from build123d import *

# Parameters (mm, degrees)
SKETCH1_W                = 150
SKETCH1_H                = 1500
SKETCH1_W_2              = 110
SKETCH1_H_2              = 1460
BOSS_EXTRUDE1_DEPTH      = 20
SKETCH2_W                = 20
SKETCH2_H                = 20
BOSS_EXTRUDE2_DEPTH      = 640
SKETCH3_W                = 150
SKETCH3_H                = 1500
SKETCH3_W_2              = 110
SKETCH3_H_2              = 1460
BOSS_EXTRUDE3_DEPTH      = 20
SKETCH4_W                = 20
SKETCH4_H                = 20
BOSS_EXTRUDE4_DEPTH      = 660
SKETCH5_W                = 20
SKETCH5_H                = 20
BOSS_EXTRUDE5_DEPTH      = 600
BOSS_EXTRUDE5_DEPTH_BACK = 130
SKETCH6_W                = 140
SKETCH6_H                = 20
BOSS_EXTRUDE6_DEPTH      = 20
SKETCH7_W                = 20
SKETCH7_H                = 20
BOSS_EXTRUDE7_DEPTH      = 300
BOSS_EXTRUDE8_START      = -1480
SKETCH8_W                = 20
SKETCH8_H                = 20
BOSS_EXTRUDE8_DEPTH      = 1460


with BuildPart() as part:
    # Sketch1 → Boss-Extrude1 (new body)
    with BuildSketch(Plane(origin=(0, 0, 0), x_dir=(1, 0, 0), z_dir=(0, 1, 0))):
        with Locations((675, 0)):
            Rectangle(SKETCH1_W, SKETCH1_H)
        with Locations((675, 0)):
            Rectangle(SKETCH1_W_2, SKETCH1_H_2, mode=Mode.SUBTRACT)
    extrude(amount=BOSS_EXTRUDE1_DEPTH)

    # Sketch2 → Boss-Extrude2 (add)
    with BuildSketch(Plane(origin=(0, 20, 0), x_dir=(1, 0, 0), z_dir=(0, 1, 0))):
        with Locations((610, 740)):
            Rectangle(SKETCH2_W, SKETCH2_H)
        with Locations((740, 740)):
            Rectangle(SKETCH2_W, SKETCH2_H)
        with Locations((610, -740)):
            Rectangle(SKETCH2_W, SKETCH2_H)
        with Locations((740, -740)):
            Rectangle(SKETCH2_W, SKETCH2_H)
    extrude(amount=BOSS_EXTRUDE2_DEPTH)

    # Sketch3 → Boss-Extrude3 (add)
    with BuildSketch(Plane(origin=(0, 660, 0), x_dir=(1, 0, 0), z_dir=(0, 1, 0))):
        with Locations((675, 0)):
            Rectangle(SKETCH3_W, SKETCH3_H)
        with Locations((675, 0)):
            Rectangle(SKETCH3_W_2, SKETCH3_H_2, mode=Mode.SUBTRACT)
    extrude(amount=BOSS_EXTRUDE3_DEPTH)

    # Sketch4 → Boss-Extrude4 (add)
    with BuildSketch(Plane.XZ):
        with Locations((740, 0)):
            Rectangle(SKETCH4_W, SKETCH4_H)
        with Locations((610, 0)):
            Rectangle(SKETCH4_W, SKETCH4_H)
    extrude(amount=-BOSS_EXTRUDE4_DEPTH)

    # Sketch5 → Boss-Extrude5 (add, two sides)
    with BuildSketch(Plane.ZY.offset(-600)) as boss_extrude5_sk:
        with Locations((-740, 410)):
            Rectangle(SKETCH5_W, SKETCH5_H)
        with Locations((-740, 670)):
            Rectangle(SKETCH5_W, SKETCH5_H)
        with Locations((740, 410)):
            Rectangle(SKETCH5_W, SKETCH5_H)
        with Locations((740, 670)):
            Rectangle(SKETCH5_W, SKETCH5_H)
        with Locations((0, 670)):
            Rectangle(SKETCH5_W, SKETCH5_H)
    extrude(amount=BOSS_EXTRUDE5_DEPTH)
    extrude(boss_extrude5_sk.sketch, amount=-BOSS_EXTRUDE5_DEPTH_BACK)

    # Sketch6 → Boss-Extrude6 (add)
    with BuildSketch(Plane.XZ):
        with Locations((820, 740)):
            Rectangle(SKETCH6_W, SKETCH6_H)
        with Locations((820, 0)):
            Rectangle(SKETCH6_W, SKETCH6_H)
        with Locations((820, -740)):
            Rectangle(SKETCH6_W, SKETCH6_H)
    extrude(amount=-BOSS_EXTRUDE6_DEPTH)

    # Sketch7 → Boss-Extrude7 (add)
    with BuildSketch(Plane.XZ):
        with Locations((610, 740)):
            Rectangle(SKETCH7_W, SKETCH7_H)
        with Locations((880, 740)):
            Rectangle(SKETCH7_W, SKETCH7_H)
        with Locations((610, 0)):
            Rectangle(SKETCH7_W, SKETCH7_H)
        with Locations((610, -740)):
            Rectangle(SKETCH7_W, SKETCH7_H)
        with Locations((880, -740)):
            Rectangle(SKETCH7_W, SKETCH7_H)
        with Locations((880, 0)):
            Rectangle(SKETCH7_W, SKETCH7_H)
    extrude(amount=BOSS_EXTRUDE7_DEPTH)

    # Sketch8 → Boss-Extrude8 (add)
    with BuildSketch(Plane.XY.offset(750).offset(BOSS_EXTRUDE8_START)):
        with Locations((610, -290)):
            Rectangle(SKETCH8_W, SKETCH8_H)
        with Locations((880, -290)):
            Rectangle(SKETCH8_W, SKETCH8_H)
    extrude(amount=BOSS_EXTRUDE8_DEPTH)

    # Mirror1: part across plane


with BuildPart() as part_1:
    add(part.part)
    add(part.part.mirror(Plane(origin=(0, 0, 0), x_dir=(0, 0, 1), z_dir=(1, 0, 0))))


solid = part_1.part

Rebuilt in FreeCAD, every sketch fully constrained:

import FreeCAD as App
import Part
import Sketcher
from FreeCAD import Vector
Q = App.Units.Quantity


def add_polygon(sketch, points):
    """Adds a closed chain of lines whose ends are joined by coincident constraints."""
    first, n = sketch.GeometryCount, len(points)
    for a, b in zip(points, points[1:] + points[:1]):
        sketch.addGeometry(Part.LineSegment(App.Vector(*a, 0), App.Vector(*b, 0)), False)
    for i in range(n):
        sketch.addConstraint(Sketcher.Constraint("Coincident", first + i, 2, first + (i + 1) % n, 1))

doc = App.newDocument("Part")
body = doc.addObject("PartDesign::Body", "Body")

# Sketch on XZ plane
sketch1 = doc.addObject("Sketcher::SketchObject", "Sketch")
body.addObject(sketch1)
sketch1.AttachmentSupport = (doc.XZ_Plane, [""])
sketch1.MapMode = "FlatFace"
add_polygon(sketch1, [(600, -750), (600, 750), (750, 750), (750, -750)])  # lines 0-3
add_polygon(sketch1, [(730, 730), (620, 730), (620, -730), (730, -730)])  # lines 4-7
sketch1.addConstraint([
    Sketcher.Constraint("Vertical", 0),
    Sketcher.Constraint("Horizontal", 1),
    Sketcher.Constraint("Vertical", 2),
    Sketcher.Constraint("Horizontal", 3),
    Sketcher.Constraint("Horizontal", 4),
    Sketcher.Constraint("Vertical", 5),
    Sketcher.Constraint("Horizontal", 6),
    Sketcher.Constraint("Vertical", 7),
    Sketcher.Constraint("DistanceX", 1, 1, 1, 2, Q("150 mm")),
    Sketcher.Constraint("DistanceX", 4, 2, 4, 1, Q("110 mm")),
    Sketcher.Constraint("DistanceY", 0, 1, 0, 2, Q("1500 mm")),
    Sketcher.Constraint("DistanceY", 5, 2, 5, 1, Q("1460 mm")),
    Sketcher.Constraint("DistanceX", -1, 1, 0, 2, Q("600 mm")),
    Sketcher.Constraint("DistanceY", -1, 1, 0, 2, Q("750 mm")),
    Sketcher.Constraint("DistanceX", -1, 1, 4, 2, Q("620 mm")),
    Sketcher.Constraint("DistanceY", -1, 1, 4, 2, Q("730 mm")),
])
pad1 = doc.addObject("PartDesign::Pad", "Pad")
body.addObject(pad1)
pad1.Profile = sketch1
pad1.Length = 20
pad1.Reversed = True

# Sketch on XZ plane
sketch2 = doc.addObject("Sketcher::SketchObject", "Sketch001")
body.addObject(sketch2)
sketch2.AttachmentSupport = (doc.XZ_Plane, [""])
sketch2.MapMode = "FlatFace"
sketch2.AttachmentOffset = App.Placement(Vector(0, 0, -20), App.Rotation())
add_polygon(sketch2, [(600, -750), (600, -730), (620, -730), (620, -750)])  # lines 0-3
add_polygon(sketch2, [(730, -750), (730, -730), (750, -730), (750, -750)])  # lines 4-7
add_polygon(sketch2, [(600, 730), (600, 750), (620, 750), (620, 730)])  # lines 8-11
add_polygon(sketch2, [(730, 730), (730, 750), (750, 750), (750, 730)])  # lines 12-15
sketch2.addConstraint([
    Sketcher.Constraint("Vertical", 0),
    Sketcher.Constraint("Horizontal", 1),
    Sketcher.Constraint("Vertical", 2),
    Sketcher.Constraint("Horizontal", 3),
    Sketcher.Constraint("Vertical", 4),
    Sketcher.Constraint("Horizontal", 5),
    Sketcher.Constraint("Vertical", 6),
    Sketcher.Constraint("Horizontal", 7),
    Sketcher.Constraint("Vertical", 8),
    Sketcher.Constraint("Horizontal", 9),
    Sketcher.Constraint("Vertical", 10),
    Sketcher.Constraint("Horizontal", 11),
    Sketcher.Constraint("Vertical", 12),
    Sketcher.Constraint("Horizontal", 13),
    Sketcher.Constraint("Vertical", 14),
    Sketcher.Constraint("Horizontal", 15),
    Sketcher.Constraint("Symmetric", 3, 2, 8, 2, -1),
    Sketcher.Constraint("Symmetric", 1, 2, 10, 2, -1),
    Sketcher.Constraint("Symmetric", 7, 2, 12, 2, -1),
    Sketcher.Constraint("Symmetric", 5, 2, 14, 2, -1),
    Sketcher.Constraint("Horizontal", 1, 2, 4, 2),
    Sketcher.Constraint("Horizontal", 3, 2, 6, 2),
    Sketcher.Constraint("Equal", 3, 5),
    Sketcher.Constraint("Equal", 15, 0),
    Sketcher.Constraint("DistanceX", 1, 1, 1, 2, Q("20 mm")),
    Sketcher.Constraint("DistanceX", -1, 1, 0, 2, Q("600 mm")),
    Sketcher.Constraint("DistanceY", 0, 2, -1, 1, Q("730 mm")),
    Sketcher.Constraint("DistanceX", -1, 1, 4, 2, Q("730 mm")),
])
pad2 = doc.addObject("PartDesign::Pad", "Pad001")
body.addObject(pad2)
pad2.Profile = sketch2
pad2.Length = 640
pad2.Reversed = True

# Sketch on XZ plane
sketch3 = doc.addObject("Sketcher::SketchObject", "Sketch002")
body.addObject(sketch3)
sketch3.AttachmentSupport = (doc.XZ_Plane, [""])
sketch3.MapMode = "FlatFace"
sketch3.AttachmentOffset = App.Placement(Vector(0, 0, -660), App.Rotation())
add_polygon(sketch3, [(600, -750), (600, 750), (750, 750), (750, -750)])  # lines 0-3
add_polygon(sketch3, [(730, 730), (620, 730), (620, -730), (730, -730)])  # lines 4-7
sketch3.addConstraint([
    Sketcher.Constraint("Vertical", 0),
    Sketcher.Constraint("Horizontal", 1),
    Sketcher.Constraint("Vertical", 2),
    Sketcher.Constraint("Horizontal", 3),
    Sketcher.Constraint("Horizontal", 4),
    Sketcher.Constraint("Vertical", 5),
    Sketcher.Constraint("Horizontal", 6),
    Sketcher.Constraint("Vertical", 7),
    Sketcher.Constraint("DistanceX", 1, 1, 1, 2, Q("150 mm")),
    Sketcher.Constraint("DistanceX", 4, 2, 4, 1, Q("110 mm")),
    Sketcher.Constraint("DistanceY", 0, 1, 0, 2, Q("1500 mm")),
    Sketcher.Constraint("DistanceY", 5, 2, 5, 1, Q("1460 mm")),
    Sketcher.Constraint("DistanceX", -1, 1, 0, 2, Q("600 mm")),
    Sketcher.Constraint("DistanceY", -1, 1, 0, 2, Q("750 mm")),
    Sketcher.Constraint("DistanceX", -1, 1, 4, 2, Q("620 mm")),
    Sketcher.Constraint("DistanceY", -1, 1, 4, 2, Q("730 mm")),
])
pad3 = doc.addObject("PartDesign::Pad", "Pad002")
body.addObject(pad3)
pad3.Profile = sketch3
pad3.Length = 20
pad3.Reversed = True

# Sketch on XZ plane
sketch4 = doc.addObject("Sketcher::SketchObject", "Sketch003")
body.addObject(sketch4)
sketch4.AttachmentSupport = (doc.XZ_Plane, [""])
sketch4.MapMode = "FlatFace"
add_polygon(sketch4, [(730, 10), (730, -10), (750, -10), (750, 10)])  # lines 0-3
add_polygon(sketch4, [(600, 10), (600, -10), (620, -10), (620, 10)])  # lines 4-7
sketch4.addConstraint([
    Sketcher.Constraint("Vertical", 0),
    Sketcher.Constraint("Horizontal", 1),
    Sketcher.Constraint("Vertical", 2),
    Sketcher.Constraint("Horizontal", 3),
    Sketcher.Constraint("Vertical", 4),
    Sketcher.Constraint("Horizontal", 5),
    Sketcher.Constraint("Vertical", 6),
    Sketcher.Constraint("Horizontal", 7),
    Sketcher.Constraint("Horizontal", 1, 2, 4, 2),
    Sketcher.Constraint("Horizontal", 3, 2, 6, 2),
    Sketcher.Constraint("Equal", 3, 5),
    Sketcher.Constraint("Equal", 7, 0),
    Sketcher.Constraint("DistanceX", 1, 1, 1, 2, Q("20 mm")),
    Sketcher.Constraint("DistanceX", -1, 1, 0, 2, Q("730 mm")),
    Sketcher.Constraint("DistanceY", 0, 2, -1, 1, Q("10 mm")),
    Sketcher.Constraint("DistanceX", -1, 1, 4, 2, Q("600 mm")),
])
pad4 = doc.addObject("PartDesign::Pad", "Pad003")
body.addObject(pad4)
pad4.Profile = sketch4
pad4.Length = 660
pad4.Reversed = True

# Sketch on YZ plane
sketch5 = doc.addObject("Sketcher::SketchObject", "Sketch004")
body.addObject(sketch5)
sketch5.AttachmentSupport = (doc.YZ_Plane, [""])
sketch5.MapMode = "FlatFace"
sketch5.AttachmentOffset = App.Placement(Vector(0, 0, 600), App.Rotation())
add_polygon(sketch5, [(420, -750), (400, -750), (400, -730), (420, -730)])  # lines 0-3
add_polygon(sketch5, [(680, -750), (660, -750), (660, -730), (680, -730)])  # lines 4-7
add_polygon(sketch5, [(420, 730), (400, 730), (400, 750), (420, 750)])  # lines 8-11
add_polygon(sketch5, [(680, 730), (660, 730), (660, 750), (680, 750)])  # lines 12-15
add_polygon(sketch5, [(680, -10), (660, -10), (660, 10), (680, 10)])  # lines 16-19
sketch5.addConstraint([
    Sketcher.Constraint("Horizontal", 0),
    Sketcher.Constraint("Vertical", 1),
    Sketcher.Constraint("Horizontal", 2),
    Sketcher.Constraint("Vertical", 3),
    Sketcher.Constraint("Horizontal", 4),
    Sketcher.Constraint("Vertical", 5),
    Sketcher.Constraint("Horizontal", 6),
    Sketcher.Constraint("Vertical", 7),
    Sketcher.Constraint("Horizontal", 8),
    Sketcher.Constraint("Vertical", 9),
    Sketcher.Constraint("Horizontal", 10),
    Sketcher.Constraint("Vertical", 11),
    Sketcher.Constraint("Horizontal", 12),
    Sketcher.Constraint("Vertical", 13),
    Sketcher.Constraint("Horizontal", 14),
    Sketcher.Constraint("Vertical", 15),
    Sketcher.Constraint("Horizontal", 16),
    Sketcher.Constraint("Vertical", 17),
    Sketcher.Constraint("Horizontal", 18),
    Sketcher.Constraint("Vertical", 19),
    Sketcher.Constraint("Symmetric", 1, 2, 8, 2, -1),
    Sketcher.Constraint("Symmetric", 3, 2, 10, 2, -1),
    Sketcher.Constraint("Symmetric", 5, 2, 12, 2, -1),
    Sketcher.Constraint("Symmetric", 7, 2, 14, 2, -1),
    Sketcher.Constraint("Horizontal", 3, 2, 4, 2),
    Sketcher.Constraint("Horizontal", 2, 2, 5, 2),
    Sketcher.Constraint("Vertical", 13, 2, 16, 2),
    Sketcher.Constraint("Vertical", 15, 2, 18, 2),
    Sketcher.Constraint("Equal", 2, 4),
    Sketcher.Constraint("Equal", 18, 1),
    Sketcher.Constraint("Equal", 15, 17),
    Sketcher.Constraint("DistanceX", 0, 2, 0, 1, Q("20 mm")),
    Sketcher.Constraint("DistanceX", -1, 1, 0, 2, Q("400 mm")),
    Sketcher.Constraint("DistanceY", 0, 2, -1, 1, Q("750 mm")),
    Sketcher.Constraint("DistanceX", -1, 1, 4, 2, Q("660 mm")),
    Sketcher.Constraint("DistanceY", 16, 2, -1, 1, Q("10 mm")),
])
pad5 = doc.addObject("PartDesign::Pad", "Pad004")
body.addObject(pad5)
pad5.Profile = sketch5
pad5.Type = "TwoLengths"
pad5.Length = 600
pad5.Length2 = 130
pad5.Reversed = True

# Sketch on XZ plane
sketch6 = doc.addObject("Sketcher::SketchObject", "Sketch005")
body.addObject(sketch6)
sketch6.AttachmentSupport = (doc.XZ_Plane, [""])
sketch6.MapMode = "FlatFace"
add_polygon(sketch6, [(750, 750), (750, 730), (890, 730), (890, 750)])  # lines 0-3
add_polygon(sketch6, [(750, 10), (750, -10), (890, -10), (890, 10)])  # lines 4-7
add_polygon(sketch6, [(750, -730), (750, -750), (890, -750), (890, -730)])  # lines 8-11
sketch6.addConstraint([
    Sketcher.Constraint("Vertical", 0),
    Sketcher.Constraint("Horizontal", 1),
    Sketcher.Constraint("Vertical", 2),
    Sketcher.Constraint("Horizontal", 3),
    Sketcher.Constraint("Vertical", 4),
    Sketcher.Constraint("Horizontal", 5),
    Sketcher.Constraint("Vertical", 6),
    Sketcher.Constraint("Horizontal", 7),
    Sketcher.Constraint("Vertical", 8),
    Sketcher.Constraint("Horizontal", 9),
    Sketcher.Constraint("Vertical", 10),
    Sketcher.Constraint("Horizontal", 11),
    Sketcher.Constraint("Symmetric", 3, 2, 8, 2, -1),
    Sketcher.Constraint("Symmetric", 1, 2, 10, 2, -1),
    Sketcher.Constraint("Vertical", 3, 2, 4, 2),
    Sketcher.Constraint("Vertical", 2, 2, 5, 2),
    Sketcher.Constraint("Equal", 2, 4),
    Sketcher.Constraint("DistanceX", 1, 1, 1, 2, Q("140 mm")),
    Sketcher.Constraint("DistanceY", 0, 2, 0, 1, Q("20 mm")),
    Sketcher.Constraint("DistanceX", -1, 1, 0, 2, Q("750 mm")),
    Sketcher.Constraint("DistanceY", -1, 1, 0, 2, Q("730 mm")),
    Sketcher.Constraint("DistanceY", 4, 2, -1, 1, Q("10 mm")),
])
pad6 = doc.addObject("PartDesign::Pad", "Pad005")
body.addObject(pad6)
pad6.Profile = sketch6
pad6.Length = 20
pad6.Reversed = True

# Sketch on XZ plane
sketch7 = doc.addObject("Sketcher::SketchObject", "Sketch006")
body.addObject(sketch7)
sketch7.AttachmentSupport = (doc.XZ_Plane, [""])
sketch7.MapMode = "FlatFace"
add_polygon(sketch7, [(600, 750), (600, 730), (620, 730), (620, 750)])  # lines 0-3
add_polygon(sketch7, [(870, 750), (870, 730), (890, 730), (890, 750)])  # lines 4-7
add_polygon(sketch7, [(600, 10), (600, -10), (620, -10), (620, 10)])  # lines 8-11
add_polygon(sketch7, [(600, -730), (600, -750), (620, -750), (620, -730)])  # lines 12-15
add_polygon(sketch7, [(870, -730), (870, -750), (890, -750), (890, -730)])  # lines 16-19
add_polygon(sketch7, [(870, 10), (870, -10), (890, -10), (890, 10)])  # lines 20-23
sketch7.addConstraint([
    Sketcher.Constraint("Vertical", 0),
    Sketcher.Constraint("Horizontal", 1),
    Sketcher.Constraint("Vertical", 2),
    Sketcher.Constraint("Horizontal", 3),
    Sketcher.Constraint("Vertical", 4),
    Sketcher.Constraint("Horizontal", 5),
    Sketcher.Constraint("Vertical", 6),
    Sketcher.Constraint("Horizontal", 7),
    Sketcher.Constraint("Vertical", 8),
    Sketcher.Constraint("Horizontal", 9),
    Sketcher.Constraint("Vertical", 10),
    Sketcher.Constraint("Horizontal", 11),
    Sketcher.Constraint("Vertical", 12),
    Sketcher.Constraint("Horizontal", 13),
    Sketcher.Constraint("Vertical", 14),
    Sketcher.Constraint("Horizontal", 15),
    Sketcher.Constraint("Vertical", 16),
    Sketcher.Constraint("Horizontal", 17),
    Sketcher.Constraint("Vertical", 18),
    Sketcher.Constraint("Horizontal", 19),
    Sketcher.Constraint("Vertical", 20),
    Sketcher.Constraint("Horizontal", 21),
    Sketcher.Constraint("Vertical", 22),
    Sketcher.Constraint("Horizontal", 23),
    Sketcher.Constraint("Symmetric", 3, 2, 12, 2, -1),
    Sketcher.Constraint("Symmetric", 1, 2, 14, 2, -1),
    Sketcher.Constraint("Symmetric", 7, 2, 16, 2, -1),
    Sketcher.Constraint("Symmetric", 5, 2, 18, 2, -1),
    Sketcher.Constraint("Horizontal", 1, 2, 4, 2),
    Sketcher.Constraint("Horizontal", 3, 2, 6, 2),
    Sketcher.Constraint("Horizontal", 9, 2, 20, 2),
    Sketcher.Constraint("Horizontal", 11, 2, 22, 2),
    Sketcher.Constraint("Vertical", 3, 2, 8, 2),
    Sketcher.Constraint("Vertical", 2, 2, 9, 2),
    Sketcher.Constraint("Vertical", 19, 2, 20, 2),
    Sketcher.Constraint("Vertical", 18, 2, 21, 2),
    Sketcher.Constraint("Equal", 3, 5),
    Sketcher.Constraint("Equal", 23, 0),
    Sketcher.Constraint("Equal", 6, 8),
    Sketcher.Constraint("DistanceX", 1, 1, 1, 2, Q("20 mm")),
    Sketcher.Constraint("DistanceX", -1, 1, 0, 2, Q("600 mm")),
    Sketcher.Constraint("DistanceY", -1, 1, 0, 2, Q("730 mm")),
    Sketcher.Constraint("DistanceX", -1, 1, 4, 2, Q("870 mm")),
    Sketcher.Constraint("DistanceY", 8, 2, -1, 1, Q("10 mm")),
])
pad7 = doc.addObject("PartDesign::Pad", "Pad006")
body.addObject(pad7)
pad7.Profile = sketch7
pad7.Length = 300

# Sketch on XY plane
sketch8 = doc.addObject("Sketcher::SketchObject", "Sketch007")
body.addObject(sketch8)
sketch8.AttachmentSupport = (doc.XY_Plane, [""])
sketch8.MapMode = "FlatFace"
sketch8.AttachmentOffset = App.Placement(Vector(0, 0, -730), App.Rotation())
add_polygon(sketch8, [(600, -280), (600, -300), (620, -300), (620, -280)])  # lines 0-3
add_polygon(sketch8, [(870, -280), (870, -300), (890, -300), (890, -280)])  # lines 4-7
sketch8.addConstraint([
    Sketcher.Constraint("Vertical", 0),
    Sketcher.Constraint("Horizontal", 1),
    Sketcher.Constraint("Vertical", 2),
    Sketcher.Constraint("Horizontal", 3),
    Sketcher.Constraint("Vertical", 4),
    Sketcher.Constraint("Horizontal", 5),
    Sketcher.Constraint("Vertical", 6),
    Sketcher.Constraint("Horizontal", 7),
    Sketcher.Constraint("Horizontal", 1, 2, 4, 2),
    Sketcher.Constraint("Horizontal", 3, 2, 6, 2),
    Sketcher.Constraint("Equal", 3, 5),
    Sketcher.Constraint("Equal", 7, 0),
    Sketcher.Constraint("DistanceX", 1, 1, 1, 2, Q("20 mm")),
    Sketcher.Constraint("DistanceX", -1, 1, 0, 2, Q("600 mm")),
    Sketcher.Constraint("DistanceY", 0, 2, -1, 1, Q("300 mm")),
    Sketcher.Constraint("DistanceX", -1, 1, 4, 2, Q("870 mm")),
])
pad8 = doc.addObject("PartDesign::Pad", "Pad007")
body.addObject(pad8)
pad8.Profile = sketch8
pad8.Length = 1460
body2 = doc.addObject("PartDesign::Body", "Body001")
doc.recompute()

body2.BaseFeature = body
doc.recompute()

mirroring = doc.addObject("Part::Mirroring", "Mirroring")
mirroring.Source = body
mirroring.Base = Vector(0, 0, 0)
mirroring.Normal = Vector(1, 0, 0)
body3 = doc.addObject("PartDesign::Body", "Body002")
body3.BaseFeature = mirroring
boolean = doc.addObject("PartDesign::Boolean", "Boolean")
body2.addObject(boolean)
boolean.Type = "Fuse"
boolean.addObjects([body3])
doc.recompute()
mirroring.Visibility = False

doc.recompute()
